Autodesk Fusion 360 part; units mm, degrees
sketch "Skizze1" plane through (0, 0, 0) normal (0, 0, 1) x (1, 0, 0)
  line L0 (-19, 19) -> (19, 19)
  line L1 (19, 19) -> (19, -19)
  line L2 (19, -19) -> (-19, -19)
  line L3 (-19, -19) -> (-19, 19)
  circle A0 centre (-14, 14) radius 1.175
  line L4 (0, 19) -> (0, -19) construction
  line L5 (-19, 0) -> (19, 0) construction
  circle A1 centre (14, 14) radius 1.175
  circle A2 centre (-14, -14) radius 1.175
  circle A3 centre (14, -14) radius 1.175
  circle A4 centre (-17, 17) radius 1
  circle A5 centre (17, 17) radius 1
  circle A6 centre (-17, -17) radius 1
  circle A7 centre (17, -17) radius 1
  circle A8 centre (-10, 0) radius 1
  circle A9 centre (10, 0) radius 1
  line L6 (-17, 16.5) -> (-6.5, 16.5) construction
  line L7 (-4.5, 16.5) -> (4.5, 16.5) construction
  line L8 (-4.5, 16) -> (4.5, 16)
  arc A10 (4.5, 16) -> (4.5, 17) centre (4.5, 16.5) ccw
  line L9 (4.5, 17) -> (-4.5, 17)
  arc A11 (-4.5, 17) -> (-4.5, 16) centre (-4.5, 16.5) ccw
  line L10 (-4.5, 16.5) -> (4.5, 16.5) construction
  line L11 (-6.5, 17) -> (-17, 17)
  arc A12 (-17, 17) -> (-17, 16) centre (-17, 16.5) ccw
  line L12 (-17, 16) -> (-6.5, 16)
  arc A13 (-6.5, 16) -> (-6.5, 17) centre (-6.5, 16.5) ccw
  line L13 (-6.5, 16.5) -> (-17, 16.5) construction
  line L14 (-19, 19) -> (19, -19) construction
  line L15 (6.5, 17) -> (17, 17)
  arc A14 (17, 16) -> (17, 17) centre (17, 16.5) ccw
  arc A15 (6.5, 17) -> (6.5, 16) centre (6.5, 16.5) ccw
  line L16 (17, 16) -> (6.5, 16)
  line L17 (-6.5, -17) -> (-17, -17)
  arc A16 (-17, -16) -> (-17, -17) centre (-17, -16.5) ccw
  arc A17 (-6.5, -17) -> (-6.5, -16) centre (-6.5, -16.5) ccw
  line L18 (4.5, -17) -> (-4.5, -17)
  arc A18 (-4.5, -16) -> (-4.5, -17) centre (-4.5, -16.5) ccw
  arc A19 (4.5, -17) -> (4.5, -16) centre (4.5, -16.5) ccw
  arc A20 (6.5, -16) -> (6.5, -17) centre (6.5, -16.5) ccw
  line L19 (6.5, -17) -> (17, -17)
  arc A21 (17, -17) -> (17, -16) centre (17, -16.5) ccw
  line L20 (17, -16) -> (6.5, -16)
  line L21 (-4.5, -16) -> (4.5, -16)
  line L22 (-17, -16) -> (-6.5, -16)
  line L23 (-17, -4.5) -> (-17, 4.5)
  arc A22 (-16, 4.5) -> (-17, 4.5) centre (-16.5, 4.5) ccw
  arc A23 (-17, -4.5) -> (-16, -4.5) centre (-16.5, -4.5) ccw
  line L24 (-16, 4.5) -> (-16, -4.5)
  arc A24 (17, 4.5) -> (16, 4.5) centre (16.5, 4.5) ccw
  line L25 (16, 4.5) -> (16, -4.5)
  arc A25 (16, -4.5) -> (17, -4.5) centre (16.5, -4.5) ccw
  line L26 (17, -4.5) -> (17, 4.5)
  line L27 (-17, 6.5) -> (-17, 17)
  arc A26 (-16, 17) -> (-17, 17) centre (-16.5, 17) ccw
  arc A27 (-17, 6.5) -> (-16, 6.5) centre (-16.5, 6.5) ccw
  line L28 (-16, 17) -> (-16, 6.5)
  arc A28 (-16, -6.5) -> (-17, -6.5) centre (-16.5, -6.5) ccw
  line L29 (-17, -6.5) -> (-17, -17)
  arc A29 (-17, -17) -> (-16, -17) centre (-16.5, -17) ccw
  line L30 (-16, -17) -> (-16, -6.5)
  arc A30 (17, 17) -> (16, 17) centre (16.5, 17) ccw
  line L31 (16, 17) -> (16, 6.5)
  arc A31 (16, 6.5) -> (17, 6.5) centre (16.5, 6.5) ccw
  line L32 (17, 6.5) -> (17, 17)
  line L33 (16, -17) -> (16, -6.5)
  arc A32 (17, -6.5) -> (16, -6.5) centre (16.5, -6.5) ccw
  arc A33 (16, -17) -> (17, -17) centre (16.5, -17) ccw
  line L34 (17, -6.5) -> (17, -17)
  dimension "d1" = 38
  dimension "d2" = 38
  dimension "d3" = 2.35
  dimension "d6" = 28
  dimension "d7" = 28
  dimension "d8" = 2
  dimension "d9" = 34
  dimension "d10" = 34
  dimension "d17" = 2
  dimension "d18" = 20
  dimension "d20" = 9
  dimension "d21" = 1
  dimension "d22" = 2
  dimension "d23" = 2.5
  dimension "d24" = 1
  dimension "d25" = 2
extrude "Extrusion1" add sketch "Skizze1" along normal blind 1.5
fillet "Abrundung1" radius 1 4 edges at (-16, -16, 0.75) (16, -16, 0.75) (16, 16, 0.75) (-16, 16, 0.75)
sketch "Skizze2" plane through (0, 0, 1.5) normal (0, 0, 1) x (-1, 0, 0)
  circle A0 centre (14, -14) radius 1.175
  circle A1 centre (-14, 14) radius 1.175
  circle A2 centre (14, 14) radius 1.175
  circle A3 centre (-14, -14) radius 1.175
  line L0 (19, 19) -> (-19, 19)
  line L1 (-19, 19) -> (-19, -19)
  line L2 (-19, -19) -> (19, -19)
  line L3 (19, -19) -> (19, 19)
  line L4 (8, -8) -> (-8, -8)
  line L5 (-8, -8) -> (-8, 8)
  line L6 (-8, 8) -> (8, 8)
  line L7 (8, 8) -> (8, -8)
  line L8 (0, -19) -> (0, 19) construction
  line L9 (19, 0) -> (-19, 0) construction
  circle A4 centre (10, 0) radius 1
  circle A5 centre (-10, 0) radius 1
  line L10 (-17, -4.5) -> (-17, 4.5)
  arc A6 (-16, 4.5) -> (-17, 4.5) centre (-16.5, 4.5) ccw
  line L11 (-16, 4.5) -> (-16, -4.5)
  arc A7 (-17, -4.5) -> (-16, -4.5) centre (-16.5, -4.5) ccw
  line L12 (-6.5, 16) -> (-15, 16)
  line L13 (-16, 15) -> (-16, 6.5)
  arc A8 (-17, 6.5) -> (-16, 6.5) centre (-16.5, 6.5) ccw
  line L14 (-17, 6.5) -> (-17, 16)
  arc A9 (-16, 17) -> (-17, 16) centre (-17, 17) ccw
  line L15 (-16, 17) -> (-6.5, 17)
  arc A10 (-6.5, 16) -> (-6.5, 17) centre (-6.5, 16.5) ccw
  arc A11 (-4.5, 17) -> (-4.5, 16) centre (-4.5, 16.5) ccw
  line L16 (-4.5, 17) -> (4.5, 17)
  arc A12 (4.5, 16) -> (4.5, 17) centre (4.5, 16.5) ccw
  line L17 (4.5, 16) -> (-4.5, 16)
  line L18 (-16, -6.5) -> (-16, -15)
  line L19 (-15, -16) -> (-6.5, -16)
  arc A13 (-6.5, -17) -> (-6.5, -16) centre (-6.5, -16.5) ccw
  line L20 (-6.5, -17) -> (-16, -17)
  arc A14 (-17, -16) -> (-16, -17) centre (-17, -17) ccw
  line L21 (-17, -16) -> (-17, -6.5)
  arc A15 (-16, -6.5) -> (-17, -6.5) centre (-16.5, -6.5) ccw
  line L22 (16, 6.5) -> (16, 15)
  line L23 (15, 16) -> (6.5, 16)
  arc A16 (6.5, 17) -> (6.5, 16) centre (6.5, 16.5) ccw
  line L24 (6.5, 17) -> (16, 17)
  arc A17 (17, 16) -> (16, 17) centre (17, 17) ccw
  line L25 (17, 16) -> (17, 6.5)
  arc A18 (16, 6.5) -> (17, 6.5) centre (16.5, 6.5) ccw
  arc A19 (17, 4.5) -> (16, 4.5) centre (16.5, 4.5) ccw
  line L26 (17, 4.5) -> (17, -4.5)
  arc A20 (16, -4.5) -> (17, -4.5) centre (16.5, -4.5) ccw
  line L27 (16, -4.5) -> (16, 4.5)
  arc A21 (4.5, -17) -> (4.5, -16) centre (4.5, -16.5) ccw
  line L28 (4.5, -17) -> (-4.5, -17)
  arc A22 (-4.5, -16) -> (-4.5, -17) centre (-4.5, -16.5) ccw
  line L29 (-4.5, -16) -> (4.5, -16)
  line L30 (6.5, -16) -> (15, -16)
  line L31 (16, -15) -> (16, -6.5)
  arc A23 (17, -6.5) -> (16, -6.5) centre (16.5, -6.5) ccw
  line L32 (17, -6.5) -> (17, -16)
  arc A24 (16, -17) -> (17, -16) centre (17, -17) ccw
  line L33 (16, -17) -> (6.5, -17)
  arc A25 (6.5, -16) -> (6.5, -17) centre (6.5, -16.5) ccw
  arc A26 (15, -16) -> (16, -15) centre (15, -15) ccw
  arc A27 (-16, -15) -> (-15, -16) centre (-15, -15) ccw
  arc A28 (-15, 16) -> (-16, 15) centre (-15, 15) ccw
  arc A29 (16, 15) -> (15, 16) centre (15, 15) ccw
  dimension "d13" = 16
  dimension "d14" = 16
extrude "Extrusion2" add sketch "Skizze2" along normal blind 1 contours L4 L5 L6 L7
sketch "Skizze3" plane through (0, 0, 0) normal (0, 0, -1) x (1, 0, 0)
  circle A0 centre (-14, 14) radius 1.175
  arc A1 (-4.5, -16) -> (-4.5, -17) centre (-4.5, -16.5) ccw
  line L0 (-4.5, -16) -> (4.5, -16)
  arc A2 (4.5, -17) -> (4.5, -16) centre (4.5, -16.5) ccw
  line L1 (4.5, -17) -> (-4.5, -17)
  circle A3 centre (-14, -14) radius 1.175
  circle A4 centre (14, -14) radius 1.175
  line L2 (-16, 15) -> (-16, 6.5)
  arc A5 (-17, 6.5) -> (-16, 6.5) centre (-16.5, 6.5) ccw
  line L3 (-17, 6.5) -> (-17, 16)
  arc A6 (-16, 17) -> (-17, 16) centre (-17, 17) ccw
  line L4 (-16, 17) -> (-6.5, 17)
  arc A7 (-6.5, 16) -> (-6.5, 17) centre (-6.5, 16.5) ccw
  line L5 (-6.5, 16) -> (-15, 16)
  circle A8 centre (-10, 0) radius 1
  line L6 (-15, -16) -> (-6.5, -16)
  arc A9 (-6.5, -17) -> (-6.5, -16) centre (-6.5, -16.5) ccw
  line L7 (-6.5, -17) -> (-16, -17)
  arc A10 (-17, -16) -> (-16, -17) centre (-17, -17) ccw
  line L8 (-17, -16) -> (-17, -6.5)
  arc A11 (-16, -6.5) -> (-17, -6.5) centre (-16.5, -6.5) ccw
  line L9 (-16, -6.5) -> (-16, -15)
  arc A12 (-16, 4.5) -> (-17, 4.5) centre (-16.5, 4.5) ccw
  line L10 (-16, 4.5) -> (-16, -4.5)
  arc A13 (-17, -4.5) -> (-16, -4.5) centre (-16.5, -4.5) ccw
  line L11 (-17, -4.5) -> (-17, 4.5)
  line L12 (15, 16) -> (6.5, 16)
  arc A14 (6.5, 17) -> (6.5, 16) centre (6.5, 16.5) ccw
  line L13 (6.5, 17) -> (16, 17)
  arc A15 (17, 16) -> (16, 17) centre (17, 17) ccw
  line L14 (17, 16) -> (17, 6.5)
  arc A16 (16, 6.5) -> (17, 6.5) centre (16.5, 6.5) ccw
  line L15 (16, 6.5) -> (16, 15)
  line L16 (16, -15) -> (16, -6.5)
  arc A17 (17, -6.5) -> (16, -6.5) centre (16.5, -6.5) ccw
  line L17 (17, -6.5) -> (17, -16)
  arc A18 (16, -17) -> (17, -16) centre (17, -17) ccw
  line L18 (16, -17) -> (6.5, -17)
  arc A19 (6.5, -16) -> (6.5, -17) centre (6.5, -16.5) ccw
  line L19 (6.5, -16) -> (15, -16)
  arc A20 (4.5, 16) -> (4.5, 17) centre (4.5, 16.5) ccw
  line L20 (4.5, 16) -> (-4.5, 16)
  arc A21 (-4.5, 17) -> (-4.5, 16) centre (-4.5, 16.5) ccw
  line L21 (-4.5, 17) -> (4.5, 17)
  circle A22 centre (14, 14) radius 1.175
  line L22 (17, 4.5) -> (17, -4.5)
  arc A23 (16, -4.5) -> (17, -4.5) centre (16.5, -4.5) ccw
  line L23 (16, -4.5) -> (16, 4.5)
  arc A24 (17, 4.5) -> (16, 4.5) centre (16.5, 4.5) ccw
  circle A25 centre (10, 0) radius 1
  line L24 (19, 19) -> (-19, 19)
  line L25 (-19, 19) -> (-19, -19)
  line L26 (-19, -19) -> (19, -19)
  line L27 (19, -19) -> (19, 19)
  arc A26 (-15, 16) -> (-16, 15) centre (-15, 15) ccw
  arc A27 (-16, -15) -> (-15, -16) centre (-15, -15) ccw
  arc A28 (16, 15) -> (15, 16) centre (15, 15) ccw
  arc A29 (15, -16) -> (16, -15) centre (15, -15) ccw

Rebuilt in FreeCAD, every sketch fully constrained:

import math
import FreeCAD as App
import Part
import Sketcher


def edges_at(feature, points):
    """Names of the edges that pass closest to the given points."""
    edges = feature.Shape.Edges
    near = lambda p: min(range(len(edges)), key=lambda i: edges[i].distToShape(Part.Vertex(*p))[0])
    return sorted({f"Edge{near(p) + 1}" for p in points})


def add_polygon(sketch, points):
    """Adds a closed chain of lines whose ends are joined by coincident constraints."""
    first, n = sketch.GeometryCount, len(points)
    for a, b in zip(points, points[1:] + points[:1]):
        sketch.addGeometry(Part.LineSegment(App.Vector(*a, 0), App.Vector(*b, 0)), False)
    for i in range(n):
        sketch.addConstraint(Sketcher.Constraint("Coincident", first + i, 2, first + (i + 1) % n, 1))

doc = App.newDocument("Part")
params = doc.addObject("Spreadsheet::Sheet", "Params")
for row, (alias, value) in enumerate([
    ("sketch1_diameter", "2 mm"),
    ("sketch1_diameter2", "2.35 mm"),
    ("sketch1_width", "38 mm"),
    ("sketch1_width2", "9 mm"),
    ("sketch1_width3", "9.5 mm"),
    ("pad1_length", "1.5 mm"),
    ("fillet_radius", "1 mm"),
    ("sketch2_width", "16 mm"),
    ("pad2_length", "1 mm"),
], start=1):
    params.set(f"A{row}", alias)
    params.set(f"B{row}", "=" + value)
    params.setAlias(f"B{row}", alias)

body = doc.addObject("PartDesign::Body", "Body")

# Sketch on XY plane
sketch1 = body.newObject("Sketcher::SketchObject", "Sketch")
sketch1.AttachmentSupport = (doc.getObject("XY_Plane"), [""])
sketch1.MapMode = "FlatFace"
add_polygon(sketch1, [(19, 19), (-19, 19), (-19, -19), (19, -19)])  # lines 0-3
sketch1.addGeometry(Part.Circle(App.Vector(-14, -14, 0), App.Vector(0, 0, 1), 1.2), False)  # 4
sketch1.addGeometry(Part.LineSegment(App.Vector(-6.5, -17, 0), App.Vector(-16, -17, 0)), False)  # 5
sketch1.addGeometry(Part.ArcOfCircle(Part.Circle(App.Vector(-17, -17, 0), App.Vector(0, 0, 1), 1), math.radians(90), math.radians(360)), False)  # 6
sketch1.addGeometry(Part.LineSegment(App.Vector(-17, -16, 0), App.Vector(-17, -6.5, 0)), False)  # 7
sketch1.addGeometry(Part.ArcOfCircle(Part.Circle(App.Vector(-16.5, -6.5, 0), App.Vector(0, 0, 1), 0.5), math.radians(0), math.radians(180)), False)  # 8
sketch1.addGeometry(Part.LineSegment(App.Vector(-16, -6.5, 0), App.Vector(-16, -16, 0)), False)  # 9
sketch1.addGeometry(Part.LineSegment(App.Vector(-16, -16, 0), App.Vector(-6.5, -16, 0)), False)  # 10
sketch1.addGeometry(Part.ArcOfCircle(Part.Circle(App.Vector(-6.5, -16.5, 0), App.Vector(0, 0, 1), 0.5), math.radians(-90), math.radians(90)), False)  # 11
sketch1.addGeometry(Part.ArcOfCircle(Part.Circle(App.Vector(4.5, -16.5, 0), App.Vector(0, 0, 1), 0.5), math.radians(-90), math.radians(90)), False)  # 12
sketch1.addGeometry(Part.LineSegment(App.Vector(4.5, -17, 0), App.Vector(-4.5, -17, 0)), False)  # 13
sketch1.addGeometry(Part.ArcOfCircle(Part.Circle(App.Vector(-4.5, -16.5, 0), App.Vector(0, 0, 1), 0.5), math.radians(90), math.radians(270)), False)  # 14
sketch1.addGeometry(Part.LineSegment(App.Vector(-4.5, -16, 0), App.Vector(4.5, -16, 0)), False)  # 15
sketch1.addGeometry(Part.Circle(App.Vector(14, -14, 0), App.Vector(0, 0, 1), 1.2), False)  # 16
sketch1.addGeometry(Part.ArcOfCircle(Part.Circle(App.Vector(17, -17, 0), App.Vector(0, 0, 1), 1), math.radians(180), math.radians(450)), False)  # 17
sketch1.addGeometry(Part.LineSegment(App.Vector(16, -17, 0), App.Vector(6.5, -17, 0)), False)  # 18
sketch1.addGeometry(Part.ArcOfCircle(Part.Circle(App.Vector(6.5, -16.5, 0), App.Vector(0, 0, 1), 0.5), math.radians(90), math.radians(270)), False)  # 19
sketch1.addGeometry(Part.LineSegment(App.Vector(6.5, -16, 0), App.Vector(16, -16, 0)), False)  # 20
sketch1.addGeometry(Part.LineSegment(App.Vector(16, -16, 0), App.Vector(16, -6.5, 0)), False)  # 21
sketch1.addGeometry(Part.ArcOfCircle(Part.Circle(App.Vector(16.5, -6.5, 0), App.Vector(0, 0, 1), 0.5), math.radians(0), math.radians(180)), False)  # 22
sketch1.addGeometry(Part.LineSegment(App.Vector(17, -6.5, 0), App.Vector(17, -16, 0)), False)  # 23
sketch1.addGeometry(Part.ArcOfCircle(Part.Circle(App.Vector(-16.5, -4.5, 0), App.Vector(0, 0, 1), 0.5), math.radians(180), math.radians(360)), False)  # 24
sketch1.addGeometry(Part.LineSegment(App.Vector(-17, -4.5, 0), App.Vector(-17, 4.5, 0)), False)  # 25
sketch1.addGeometry(Part.ArcOfCircle(Part.Circle(App.Vector(-16.5, 4.5, 0), App.Vector(0, 0, 1), 0.5), math.radians(0), math.radians(180)), False)  # 26
sketch1.addGeometry(Part.LineSegment(App.Vector(-16, 4.5, 0), App.Vector(-16, -4.5, 0)), False)  # 27
sketch1.addGeometry(Part.Circle(App.Vector(-10, 0, 0), App.Vector(0, 0, 1), 1), False)  # 28
sketch1.addGeometry(Part.ArcOfCircle(Part.Circle(App.Vector(-17, 17, 0), App.Vector(0, 0, 1), 1), math.radians(0), math.radians(270)), False)  # 29
sketch1.addGeometry(Part.LineSegment(App.Vector(-16, 17, 0), App.Vector(-6.5, 17, 0)), False)  # 30
sketch1.addGeometry(Part.ArcOfCircle(Part.Circle(App.Vector(-6.5, 16.5, 0), App.Vector(0, 0, 1), 0.5), math.radians(-90), math.radians(90)), False)  # 31
sketch1.addGeometry(Part.LineSegment(App.Vector(-6.5, 16, 0), App.Vector(-16, 16, 0)), False)  # 32
sketch1.addGeometry(Part.LineSegment(App.Vector(-16, 16, 0), App.Vector(-16, 6.5, 0)), False)  # 33
sketch1.addGeometry(Part.ArcOfCircle(Part.Circle(App.Vector(-16.5, 6.5, 0), App.Vector(0, 0, 1), 0.5), math.radians(180), math.radians(360)), False)  # 34
sketch1.addGeometry(Part.LineSegment(App.Vector(-17, 6.5, 0), App.Vector(-17, 16, 0)), False)  # 35
sketch1.addGeometry(Part.Circle(App.Vector(-14, 14, 0), App.Vector(0, 0, 1), 1.2), False)  # 36
sketch1.addGeometry(Part.Circle(App.Vector(10, 0, 0), App.Vector(0, 0, 1), 1), False)  # 37
sketch1.addGeometry(Part.ArcOfCircle(Part.Circle(App.Vector(16.5, 4.5, 0), App.Vector(0, 0, 1), 0.5), math.radians(0), math.radians(180)), False)  # 38
sketch1.addGeometry(Part.LineSegment(App.Vector(17, 4.5, 0), App.Vector(17, -4.5, 0)), False)  # 39
sketch1.addGeometry(Part.ArcOfCircle(Part.Circle(App.Vector(16.5, -4.5, 0), App.Vector(0, 0, 1), 0.5), math.radians(180), math.radians(360)), False)  # 40
sketch1.addGeometry(Part.LineSegment(App.Vector(16, -4.5, 0), App.Vector(16, 4.5, 0)), False)  # 41
sketch1.addGeometry(Part.LineSegment(App.Vector(4.5, 16, 0), App.Vector(-4.5, 16, 0)), False)  # 42
sketch1.addGeometry(Part.ArcOfCircle(Part.Circle(App.Vector(-4.5, 16.5, 0), App.Vector(0, 0, 1), 0.5), math.radians(90), math.radians(270)), False)  # 43
sketch1.addGeometry(Part.LineSegment(App.Vector(-4.5, 17, 0), App.Vector(4.5, 17, 0)), False)  # 44
sketch1.addGeometry(Part.ArcOfCircle(Part.Circle(App.Vector(4.5, 16.5, 0), App.Vector(0, 0, 1), 0.5), math.radians(-90), math.radians(90)), False)  # 45
sketch1.addGeometry(Part.ArcOfCircle(Part.Circle(App.Vector(17, 17, 0), App.Vector(0, 0, 1), 1), math.radians(-90), math.radians(180)), False)  # 46
sketch1.addGeometry(Part.LineSegment(App.Vector(17, 16, 0), App.Vector(17, 6.5, 0)), False)  # 47
sketch1.addGeometry(Part.ArcOfCircle(Part.Circle(App.Vector(16.5, 6.5, 0), App.Vector(0, 0, 1), 0.5), math.radians(180), math.radians(360)), False)  # 48
sketch1.addGeometry(Part.LineSegment(App.Vector(16, 6.5, 0), App.Vector(16, 16, 0)), False)  # 49
sketch1.addGeometry(Part.LineSegment(App.Vector(16, 16, 0), App.Vector(6.5, 16, 0)), False)  # 50
sketch1.addGeometry(Part.ArcOfCircle(Part.Circle(App.Vector(6.5, 16.5, 0), App.Vector(0, 0, 1), 0.5), math.radians(90), math.radians(270)), False)  # 51
sketch1.addGeometry(Part.LineSegment(App.Vector(6.5, 17, 0), App.Vector(16, 17, 0)), False)  # 52
sketch1.addGeometry(Part.Circle(App.Vector(14, 14, 0), App.Vector(0, 0, 1), 1.2), False)  # 53
sketch1.addConstraint([
    Sketcher.Constraint("Coincident", 5, 2, 6, 2),
    Sketcher.Constraint("Coincident", 6, 1, 7, 1),
    Sketcher.Constraint("Tangent", 7, 2, 8, 2),
    Sketcher.Constraint("Tangent", 8, 1, 9, 1),
    Sketcher.Constraint("Coincident", 9, 2, 10, 1),
    Sketcher.Constraint("Tangent", 10, 2, 11, 2),
    Sketcher.Constraint("Tangent", 11, 1, 5, 1),
    Sketcher.Constraint("Tangent", 12, 1, 13, 1),
    Sketcher.Constraint("Tangent", 13, 2, 14, 2),
    Sketcher.Constraint("Tangent", 14, 1, 15, 1),
    Sketcher.Constraint("Tangent", 15, 2, 12, 2),
    Sketcher.Constraint("Coincident", 17, 1, 18, 1),
    Sketcher.Constraint("Tangent", 18, 2, 19, 2),
    Sketcher.Constraint("Tangent", 19, 1, 20, 1),
    Sketcher.Constraint("Coincident", 20, 2, 21, 1),
    Sketcher.Constraint("Tangent", 21, 2, 22, 2),
    Sketcher.Constraint("Tangent", 22, 1, 23, 1),
    Sketcher.Constraint("Coincident", 23, 2, 17, 2),
    Sketcher.Constraint("Tangent", 24, 1, 25, 1),
    Sketcher.Constraint("Tangent", 25, 2, 26, 2),
    Sketcher.Constraint("Tangent", 26, 1, 27, 1),
    Sketcher.Constraint("Tangent", 27, 2, 24, 2),
    Sketcher.Constraint("Coincident", 29, 1, 30, 1),
    Sketcher.Constraint("Tangent", 30, 2, 31, 2),
    Sketcher.Constraint("Tangent", 31, 1, 32, 1),
    Sketcher.Constraint("Coincident", 32, 2, 33, 1),
    Sketcher.Constraint("Tangent", 33, 2, 34, 2),
    Sketcher.Constraint("Tangent", 34, 1, 35, 1),
    Sketcher.Constraint("Coincident", 35, 2, 29, 2),
    Sketcher.Constraint("Tangent", 38, 1, 39, 1),
    Sketcher.Constraint("Tangent", 39, 2, 40, 2),
    Sketcher.Constraint("Tangent", 40, 1, 41, 1),
    Sketcher.Constraint("Tangent", 41, 2, 38, 2),
    Sketcher.Constraint("Tangent", 42, 2, 43, 2),
    Sketcher.Constraint("Tangent", 43, 1, 44, 1),
    Sketcher.Constraint("Tangent", 44, 2, 45, 2),
    Sketcher.Constraint("Tangent", 45, 1, 42, 1),
    Sketcher.Constraint("Coincident", 46, 1, 47, 1),
    Sketcher.Constraint("Tangent", 47, 2, 48, 2),
    Sketcher.Constraint("Tangent", 48, 1, 49, 1),
    Sketcher.Constraint("Coincident", 49, 2, 50, 1),
    Sketcher.Constraint("Tangent", 50, 2, 51, 2),
    Sketcher.Constraint("Tangent", 51, 1, 52, 1),
    Sketcher.Constraint("Coincident", 52, 2, 46, 2),
    Sketcher.Constraint("Horizontal", 0),
    Sketcher.Constraint("Vertical", 1),
    Sketcher.Constraint("Horizontal", 2),
    Sketcher.Constraint("Vertical", 3),
    Sketcher.Constraint("Horizontal", 5),
    Sketcher.Constraint("Vertical", 7),
    Sketcher.Constraint("Vertical", 9),
    Sketcher.Constraint("Horizontal", 10),
    Sketcher.Constraint("Horizontal", 13),
    Sketcher.Constraint("Horizontal", 15),
    Sketcher.Constraint("Horizontal", 18),
    Sketcher.Constraint("Horizontal", 20),
    Sketcher.Constraint("Vertical", 21),
    Sketcher.Constraint("Vertical", 23),
    Sketcher.Constraint("Vertical", 25),
    Sketcher.Constraint("Vertical", 27),
    Sketcher.Constraint("Horizontal", 30),
    Sketcher.Constraint("Horizontal", 32),
    Sketcher.Constraint("Vertical", 33),
    Sketcher.Constraint("Vertical", 35),
    Sketcher.Constraint("Vertical", 39),
    Sketcher.Constraint("Vertical", 41),
    Sketcher.Constraint("Horizontal", 42),
    Sketcher.Constraint("Horizontal", 44),
    Sketcher.Constraint("Vertical", 47),
    Sketcher.Constraint("Vertical", 49),
    Sketcher.Constraint("Horizontal", 50),
    Sketcher.Constraint("Horizontal", 52),
    Sketcher.Constraint("Equal", 8, 11),
    Sketcher.Constraint("Equal", 11, 12),
    Sketcher.Constraint("Equal", 4, 16),
    Sketcher.Constraint("Equal", 6, 17),
    Sketcher.Constraint("Equal", 14, 19),
    Sketcher.Constraint("Equal", 19, 22),
    Sketcher.Constraint("Equal", 22, 24),
    Sketcher.Constraint("Equal", 17, 28),
    Sketcher.Constraint("Equal", 28, 29),
    Sketcher.Constraint("Equal", 26, 31),
    Sketcher.Constraint("Equal", 31, 34),
    Sketcher.Constraint("Equal", 16, 36),
    Sketcher.Constraint("Equal", 29, 37),
    Sketcher.Constraint("Equal", 34, 38),
    Sketcher.Constraint("Equal", 40, 43),
    Sketcher.Constraint("Equal", 37, 46),
    Sketcher.Constraint("Equal", 45, 48),
    Sketcher.Constraint("Equal", 48, 51),
    Sketcher.Constraint("Equal", 36, 53),
    Sketcher.Constraint("Symmetric", 17, 3, 29, 3, -1, 1),
    Sketcher.Constraint("Symmetric", 19, 3, 31, 3, -1, 1),
    Sketcher.Constraint("Symmetric", 22, 3, 34, 3, -1, 1),
    Sketcher.Constraint("Symmetric", 16, 3, 36, 3, -1, 1),
    Sketcher.Constraint("Symmetric", 28, 3, 37, 3, -1, 1),
    Sketcher.Constraint("Symmetric", 24, 3, 38, 3, -1, 1),
    Sketcher.Constraint("Symmetric", 12, 3, 43, 3, -1, 1),
    Sketcher.Constraint("Symmetric", 6, 3, 46, 3, -1, 1),
    Sketcher.Constraint("Symmetric", 8, 3, 48, 3, -1, 1),
    Sketcher.Constraint("Symmetric", 11, 3, 51, 3, -1, 1),
    Sketcher.Constraint("Symmetric", 4, 3, 53, 3, -1, 1),
    Sketcher.Constraint("Symmetric", 0, 2, 2, 2, -1, 1),
    Sketcher.Constraint("Symmetric", 4, 3, 16, 3, -2),
    Sketcher.Constraint("Symmetric", 6, 3, 17, 3, -2),
    Sketcher.Constraint("Symmetric", 11, 3, 19, 3, -2),
    Sketcher.Constraint("Symmetric", 8, 3, 22, 3, -2),
    Sketcher.Constraint("PointOnObject", 28, 3, -1),
    Sketcher.Constraint("Horizontal", 11, 3, 12, 3),
    Sketcher.Constraint("Horizontal", 26, 3, 38, 3),
    Sketcher.Constraint("Horizontal", 24, 3, 40, 3),
    Sketcher.Constraint("Horizontal", 17, 3, 5, 2),
    Sketcher.Constraint("Horizontal", 6, 1, 9, 2),
    Sketcher.Constraint("Vertical", 8, 3, 24, 3),
    Sketcher.Constraint("Vertical", 14, 3, 43, 3),
    Sketcher.Constraint("Vertical", 12, 3, 45, 3),
    Sketcher.Constraint("Vertical", 29, 3, 6, 1),
    Sketcher.Constraint("Equal", 2, 1),
    Sketcher.Constraint("Equal", 52, 7),
    Sketcher.Constraint("Equal", 44, 25),
    Sketcher.Constraint("Diameter", 28, 2.0),
    Sketcher.Constraint("Diameter", 4, 2.35),
    Sketcher.Constraint("DistanceX", 0, 2, 0, 1, 38.0),
    Sketcher.Constraint("DistanceX", 13, 2, 13, 1, 9.0),
    Sketcher.Constraint("DistanceX", 5, 2, 5, 1, 9.5),
    Sketcher.Constraint("DistanceX", 4, 3, -1, 1, 14.0),
    Sketcher.Constraint("DistanceY", 4, 3, -1, 1, 14.0),
    Sketcher.Constraint("DistanceX", 6, 3, -1, 1, 17.0),
    Sketcher.Constraint("DistanceY", 6, 3, -1, 1, 17.0),
    Sketcher.Constraint("DistanceX", 28, 3, -1, 1, 10.0),
])
sketch1.setExpression("Constraints[124]", "Params.sketch1_diameter")
sketch1.setExpression("Constraints[125]", "Params.sketch1_diameter2")
sketch1.setExpression("Constraints[126]", "Params.sketch1_width")
sketch1.setExpression("Constraints[127]", "Params.sketch1_width2")
sketch1.setExpression("Constraints[128]", "Params.sketch1_width3")
pad1 = body.newObject("PartDesign::Pad", "Pad")
pad1.Profile = sketch1
pad1.setExpression("Length", "Params.pad1_length")
doc.recompute()

fillet = body.newObject("PartDesign::Fillet", "Fillet")
fillet.Base = (pad1, edges_at(pad1, [
    (-16, -16, 0.75),
    (16, -16, 0.75),
    (16, 16, 0.75),
    (-16, 16, 0.75),
]))
fillet.setExpression("Radius", "Params.fillet_radius")

# Sketch on XY plane
sketch2 = body.newObject("Sketcher::SketchObject", "Sketch001")
sketch2.AttachmentSupport = (doc.getObject("XY_Plane"), [""])
sketch2.MapMode = "FlatFace"
sketch2.AttachmentOffset = App.Placement(App.Vector(0, 0, 1.5), App.Rotation())
add_polygon(sketch2, [(8, 8), (-8, 8), (-8, -8), (8, -8)])  # lines 0-3
sketch2.addConstraint([
    Sketcher.Constraint("Horizontal", 0),
    Sketcher.Constraint("Vertical", 1),
    Sketcher.Constraint("Horizontal", 2),
    Sketcher.Constraint("Vertical", 3),
    Sketcher.Constraint("Symmetric", 0, 2, 2, 2, -1, 1),
    Sketcher.Constraint("Equal", 2, 1),
    Sketcher.Constraint("DistanceX", 0, 2, 0, 1, 16.0),
])
sketch2.setExpression("Constraints[10]", "Params.sketch2_width")
pad2 = body.newObject("PartDesign::Pad", "Pad001")
pad2.Profile = sketch2
pad2.setExpression("Length", "Params.pad2_length")

doc.recompute()
